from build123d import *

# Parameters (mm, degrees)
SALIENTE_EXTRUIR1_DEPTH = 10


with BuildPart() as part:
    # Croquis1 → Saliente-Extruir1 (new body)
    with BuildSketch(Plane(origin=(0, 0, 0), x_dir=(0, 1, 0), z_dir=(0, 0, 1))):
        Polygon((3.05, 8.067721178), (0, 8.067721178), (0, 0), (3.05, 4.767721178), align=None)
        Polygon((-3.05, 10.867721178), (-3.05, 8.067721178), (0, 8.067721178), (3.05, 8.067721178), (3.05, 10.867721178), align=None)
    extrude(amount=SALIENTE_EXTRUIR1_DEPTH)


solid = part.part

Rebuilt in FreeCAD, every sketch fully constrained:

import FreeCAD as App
import Part
import Sketcher
from FreeCAD import Vector
Q = App.Units.Quantity

doc = App.newDocument("Part")
body = doc.addObject("PartDesign::Body", "Body")

# Sketch on XY plane
sketch1 = body.newObject("Sketcher::SketchObject", "Sketch")
sketch1.AttachmentSupport = (doc.getObject("XY_Plane"), [""])
sketch1.MapMode = "FlatFace"
sketch1.addGeometry(Part.LineSegment(Vector(-8.1, 0, 0), Vector(0, 0, 0)), False)
sketch1.addGeometry(Part.LineSegment(Vector(0, 0, 0), Vector(-4.8, 3, 0)), False)
sketch1.addGeometry(Part.LineSegment(Vector(-4.8, 3, 0), Vector(-10.9, 3, 0)), False)
sketch1.addGeometry(Part.LineSegment(Vector(-10.9, 3, 0), Vector(-10.9, -3, 0)), False)
sketch1.addGeometry(Part.LineSegment(Vector(-10.9, -3, 0), Vector(-8.1, -3, 0)), False)
sketch1.addGeometry(Part.LineSegment(Vector(-8.1, -3, 0), Vector(-8.1, 0, 0)), False)
sketch1.addConstraint(Sketcher.Constraint("Coincident", 0, 2, 1, 1))
sketch1.addConstraint(Sketcher.Constraint("Coincident", 1, 2, 2, 1))
sketch1.addConstraint(Sketcher.Constraint("Coincident", 2, 2, 3, 1))
sketch1.addConstraint(Sketcher.Constraint("Coincident", 3, 2, 4, 1))
sketch1.addConstraint(Sketcher.Constraint("Coincident", 4, 2, 5, 1))
sketch1.addConstraint(Sketcher.Constraint("Coincident", 5, 2, 0, 1))
sketch1.addConstraint(Sketcher.Constraint("Horizontal", 0))
sketch1.addConstraint(Sketcher.Constraint("Horizontal", 2))
sketch1.addConstraint(Sketcher.Constraint("Vertical", 3))
sketch1.addConstraint(Sketcher.Constraint("Horizontal", 4))
sketch1.addConstraint(Sketcher.Constraint("Vertical", 5))
sketch1.addConstraint(Sketcher.Constraint("Coincident", 0, 2, -1, 1))
sketch1.addConstraint(Sketcher.Constraint("Equal", 2, 3))
sketch1.addConstraint(Sketcher.Constraint("DistanceX", 2, 2, 2, 1, Q("6.1 mm")))
sketch1.addConstraint(Sketcher.Constraint("DistanceX", 4, 1, 4, 2, Q("2.8 mm")))
sketch1.addConstraint(Sketcher.Constraint("DistanceY", 5, 1, 5, 2, Q("3.05 mm")))
sketch1.addConstraint(Sketcher.Constraint("DistanceX", 0, 1, 0, 2, Q("8.067721 mm")))
pad1 = body.newObject("PartDesign::Pad", "Pad")
pad1.Profile = sketch1
pad1.Length = 10

doc.recompute()
